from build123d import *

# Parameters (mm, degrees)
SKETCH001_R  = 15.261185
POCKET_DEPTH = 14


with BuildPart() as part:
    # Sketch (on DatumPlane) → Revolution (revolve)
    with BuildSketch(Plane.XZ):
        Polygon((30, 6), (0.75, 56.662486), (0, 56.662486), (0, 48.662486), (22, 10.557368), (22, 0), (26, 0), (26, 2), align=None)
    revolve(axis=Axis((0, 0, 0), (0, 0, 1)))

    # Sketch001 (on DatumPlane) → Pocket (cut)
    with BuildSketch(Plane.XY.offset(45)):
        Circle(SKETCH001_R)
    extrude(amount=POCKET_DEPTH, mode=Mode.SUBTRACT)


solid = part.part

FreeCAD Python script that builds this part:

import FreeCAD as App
import Part
import Sketcher

V = App.Vector
Q = App.Units.Quantity


def add_polygon(sketch, points):
    """Adds a closed chain of lines whose ends are joined by coincident constraints."""
    first, n = sketch.GeometryCount, len(points)
    for a, b in zip(points, points[1:] + points[:1]):
        sketch.addGeometry(Part.LineSegment(App.Vector(*a, 0), App.Vector(*b, 0)), False)
    for i in range(n):
        sketch.addConstraint(Sketcher.Constraint("Coincident", first + i, 2, first + (i + 1) % n, 1))

doc = App.newDocument("Part")
body = doc.addObject("PartDesign::Body", "Body")

# Sketch on XZ plane
sketch1 = body.newObject("Sketcher::SketchObject", "Sketch")
sketch1.AttachmentSupport = (doc.getObject("XZ_Plane"), [""])
sketch1.MapMode = "FlatFace"
add_polygon(sketch1, [(30, 6), (0.8, 56.7), (0, 56.7), (0, 48.7), (22, 10.6), (22, 0), (26, 0), (26, 2)])  # lines 0-7
sketch1.addConstraint(Sketcher.Constraint("Horizontal", 1))
sketch1.addConstraint(Sketcher.Constraint("Vertical", 2))
sketch1.addConstraint(Sketcher.Constraint("Vertical", 4))
sketch1.addConstraint(Sketcher.Constraint("Horizontal", 5))
sketch1.addConstraint(Sketcher.Constraint("Vertical", 6))
sketch1.addConstraint(Sketcher.Constraint("PointOnObject", 1, 2, -2))
sketch1.addConstraint(Sketcher.Constraint("PointOnObject", 4, 2, -1))
sketch1.addConstraint(Sketcher.Constraint("Parallel", 0, 3))
sketch1.addConstraint(Sketcher.Constraint("DistanceX", 5, 1, 5, 2, Q("4 mm")))
sketch1.addConstraint(Sketcher.Constraint("DistanceY", 2, 2, 2, 1, Q("8 mm")))
sketch1.addConstraint(Sketcher.Constraint("DistanceY", 6, 1, 6, 2, Q("2 mm")))
sketch1.addConstraint(Sketcher.Constraint("Angle", 0, Q("120 deg")))
sketch1.addConstraint(Sketcher.Constraint("Angle", 7, Q("45 deg")))
sketch1.addConstraint(Sketcher.Constraint("Distance", 3, Q("44 mm")))
sketch1.addConstraint(Sketcher.Constraint("DistanceX", -1, 1, 7, 2, Q("30 mm")))
sketch1.addConstraint(Sketcher.Constraint("Distance", 0, Q("58.5 mm")))
revolution = body.newObject("PartDesign::Revolution", "Revolution")
revolution.Profile = sketch1
revolution.ReferenceAxis = (sketch1, ["V_Axis"])
revolution.Angle = 360

# Sketch on XY plane
sketch2 = body.newObject("Sketcher::SketchObject", "Sketch001")
sketch2.AttachmentSupport = (doc.getObject("XY_Plane"), [""])
sketch2.MapMode = "FlatFace"
sketch2.AttachmentOffset = App.Placement(V(0, 0, 45), App.Rotation())
sketch2.addGeometry(Part.Circle(V(0, 0, 0), V(0, 0, 1), 15), False)
sketch2.addConstraint(Sketcher.Constraint("Coincident", 0, 3, -1, 1))
sketch2.addConstraint(Sketcher.Constraint("Diameter", 0, Q("30.52237 mm")))
pocket1 = body.newObject("PartDesign::Pocket", "Pocket")
pocket1.Profile = sketch2
pocket1.Length = 14
pocket1.Reversed = True

doc.recompute()
